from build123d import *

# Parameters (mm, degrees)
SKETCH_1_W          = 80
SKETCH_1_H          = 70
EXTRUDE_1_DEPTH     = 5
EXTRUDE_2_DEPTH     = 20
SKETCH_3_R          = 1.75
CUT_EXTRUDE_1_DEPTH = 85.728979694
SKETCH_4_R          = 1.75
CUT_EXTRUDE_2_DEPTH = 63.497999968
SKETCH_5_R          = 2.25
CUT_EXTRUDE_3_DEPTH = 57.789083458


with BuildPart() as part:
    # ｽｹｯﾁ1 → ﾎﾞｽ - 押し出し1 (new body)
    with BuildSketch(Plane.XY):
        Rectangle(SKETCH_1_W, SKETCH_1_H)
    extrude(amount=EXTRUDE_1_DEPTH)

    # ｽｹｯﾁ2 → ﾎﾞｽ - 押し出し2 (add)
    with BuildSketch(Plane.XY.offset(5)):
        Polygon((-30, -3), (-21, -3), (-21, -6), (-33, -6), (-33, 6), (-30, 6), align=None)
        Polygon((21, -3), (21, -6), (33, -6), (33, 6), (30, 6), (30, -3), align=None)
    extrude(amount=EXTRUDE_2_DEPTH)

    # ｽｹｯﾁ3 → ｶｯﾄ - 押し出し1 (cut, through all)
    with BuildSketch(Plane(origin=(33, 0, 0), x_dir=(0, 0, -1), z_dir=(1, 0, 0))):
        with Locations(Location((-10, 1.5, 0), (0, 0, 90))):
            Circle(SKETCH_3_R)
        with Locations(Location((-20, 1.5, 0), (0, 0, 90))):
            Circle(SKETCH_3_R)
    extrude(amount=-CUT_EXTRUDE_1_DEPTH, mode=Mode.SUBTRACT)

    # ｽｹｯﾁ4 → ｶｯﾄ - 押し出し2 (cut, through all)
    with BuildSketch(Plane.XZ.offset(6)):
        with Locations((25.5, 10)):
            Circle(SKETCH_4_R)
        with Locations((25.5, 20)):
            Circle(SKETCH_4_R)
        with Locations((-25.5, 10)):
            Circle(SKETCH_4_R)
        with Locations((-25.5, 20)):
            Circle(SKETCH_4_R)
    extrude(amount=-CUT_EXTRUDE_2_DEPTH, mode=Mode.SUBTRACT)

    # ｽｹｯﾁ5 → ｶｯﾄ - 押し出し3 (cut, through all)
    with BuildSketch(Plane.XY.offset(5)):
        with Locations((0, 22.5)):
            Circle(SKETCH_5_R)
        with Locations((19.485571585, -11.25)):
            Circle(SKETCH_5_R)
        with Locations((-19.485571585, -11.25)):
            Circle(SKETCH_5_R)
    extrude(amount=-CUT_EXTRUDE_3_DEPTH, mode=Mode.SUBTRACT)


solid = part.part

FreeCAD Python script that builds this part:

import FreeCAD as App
import Part
import Sketcher
from FreeCAD import Vector
Q = App.Units.Quantity

doc = App.newDocument("Part")
params = doc.addObject("Spreadsheet::Sheet", "Params")
for row, (alias, value) in enumerate([
    ("sketch1_width", "80 mm"),
    ("sketch1_height", "70 mm"),
    ("pad1_length", "5 mm"),
    ("sketch2_width", "9 mm"),
    ("sketch2_width2", "3 mm"),
    ("pad2_length", "20 mm"),
    ("sketch3_diameter", "3.5 mm"),
    ("sketch4_diameter", "3.5 mm"),
    ("sketch5_diameter", "4.5 mm"),
], start=1):
    params.set(f"A{row}", alias)
    params.set(f"B{row}", "=" + value)
    params.setAlias(f"B{row}", alias)

body = doc.addObject("PartDesign::Body", "Body")

sketch1 = body.newObject("Sketcher::SketchObject", "Sketch")
sketch1.AttachmentSupport = (doc.getObject("XY_Plane"), [""])
sketch1.MapMode = "FlatFace"
sketch1.addGeometry([
    Part.LineSegment(Vector(-40, 35, 0), Vector(-40, -35, 0)),
    Part.LineSegment(Vector(-40, -35, 0), Vector(40, -35, 0)),
    Part.LineSegment(Vector(40, -35, 0), Vector(40, 35, 0)),
    Part.LineSegment(Vector(40, 35, 0), Vector(-40, 35, 0)),
], False)
sketch1.addConstraint([
    Sketcher.Constraint("Coincident", 0, 2, 1, 1),
    Sketcher.Constraint("Coincident", 1, 2, 2, 1),
    Sketcher.Constraint("Coincident", 2, 2, 3, 1),
    Sketcher.Constraint("Coincident", 3, 2, 0, 1),
    Sketcher.Constraint("Vertical", 0),
    Sketcher.Constraint("Horizontal", 1),
    Sketcher.Constraint("Vertical", 2),
    Sketcher.Constraint("Horizontal", 3),
    Sketcher.Constraint("Symmetric", 0, 2, 2, 2, -1, 1),
    Sketcher.Constraint("DistanceX", 1, 1, 1, 2, Q("80 mm")),
    Sketcher.Constraint("DistanceY", 0, 2, 0, 1, Q("70 mm")),
])
sketch1.setExpression("Constraints[9]", "Params.sketch1_width")
sketch1.setExpression("Constraints[10]", "Params.sketch1_height")
pad1 = body.newObject("PartDesign::Pad", "Pad")
pad1.Profile = sketch1
pad1.setExpression("Length", "Params.pad1_length")

sketch2 = body.newObject("Sketcher::SketchObject", "Sketch001")
sketch2.AttachmentSupport = (doc.getObject("XY_Plane"), [""])
sketch2.MapMode = "FlatFace"
sketch2.AttachmentOffset = App.Placement(Vector(0, 0, 5), App.Rotation())
sketch2.addGeometry([
    Part.LineSegment(Vector(-21, -3, 0), Vector(-30, -3, 0)),
    Part.LineSegment(Vector(-30, -3, 0), Vector(-30, 6, 0)),
    Part.LineSegment(Vector(-30, 6, 0), Vector(-33, 6, 0)),
    Part.LineSegment(Vector(-33, 6, 0), Vector(-33, -6, 0)),
    Part.LineSegment(Vector(-33, -6, 0), Vector(-21, -6, 0)),
    Part.LineSegment(Vector(-21, -6, 0), Vector(-21, -3, 0)),
    Part.LineSegment(Vector(21, -3, 0), Vector(21, -6, 0)),
    Part.LineSegment(Vector(21, -6, 0), Vector(33, -6, 0)),
    Part.LineSegment(Vector(33, -6, 0), Vector(33, 6, 0)),
    Part.LineSegment(Vector(33, 6, 0), Vector(30, 6, 0)),
    Part.LineSegment(Vector(30, 6, 0), Vector(30, -3, 0)),
    Part.LineSegment(Vector(30, -3, 0), Vector(21, -3, 0)),
], False)
sketch2.addConstraint([
    Sketcher.Constraint("Coincident", 0, 2, 1, 1),
    Sketcher.Constraint("Coincident", 1, 2, 2, 1),
    Sketcher.Constraint("Coincident", 2, 2, 3, 1),
    Sketcher.Constraint("Coincident", 3, 2, 4, 1),
    Sketcher.Constraint("Coincident", 4, 2, 5, 1),
    Sketcher.Constraint("Coincident", 5, 2, 0, 1),
    Sketcher.Constraint("Coincident", 6, 2, 7, 1),
    Sketcher.Constraint("Coincident", 7, 2, 8, 1),
    Sketcher.Constraint("Coincident", 8, 2, 9, 1),
    Sketcher.Constraint("Coincident", 9, 2, 10, 1),
    Sketcher.Constraint("Coincident", 10, 2, 11, 1),
    Sketcher.Constraint("Coincident", 11, 2, 6, 1),
    Sketcher.Constraint("Horizontal", 0),
    Sketcher.Constraint("Vertical", 1),
    Sketcher.Constraint("Horizontal", 2),
    Sketcher.Constraint("Vertical", 3),
    Sketcher.Constraint("Horizontal", 4),
    Sketcher.Constraint("Vertical", 5),
    Sketcher.Constraint("Vertical", 6),
    Sketcher.Constraint("Horizontal", 7),
    Sketcher.Constraint("Vertical", 8),
    Sketcher.Constraint("Horizontal", 9),
    Sketcher.Constraint("Vertical", 10),
    Sketcher.Constraint("Horizontal", 11),
    Sketcher.Constraint("Symmetric", 2, 2, 7, 2, -1, 1),
    Sketcher.Constraint("Symmetric", 4, 2, 6, 2, -2),
    Sketcher.Constraint("Symmetric", 1, 2, 9, 2, -2),
    Sketcher.Constraint("Horizontal", 5, 2, 10, 2),
    Sketcher.Constraint("Equal", 11, 1),
    Sketcher.Constraint("Equal", 7, 3),
    Sketcher.Constraint("DistanceX", 0, 2, 0, 1, Q("9 mm")),
    Sketcher.Constraint("DistanceX", 2, 2, 2, 1, Q("3 mm")),
    Sketcher.Constraint("DistanceX", 0, 2, -1, 1, Q("30 mm")),
])
sketch2.setExpression("Constraints[30]", "Params.sketch2_width")
sketch2.setExpression("Constraints[31]", "Params.sketch2_width2")
pad2 = body.newObject("PartDesign::Pad", "Pad001")
pad2.Profile = sketch2
pad2.setExpression("Length", "Params.pad2_length")

sketch3 = body.newObject("Sketcher::SketchObject", "Sketch002")
sketch3.AttachmentSupport = (doc.getObject("YZ_Plane"), [""])
sketch3.MapMode = "FlatFace"
sketch3.AttachmentOffset = App.Placement(Vector(0, 0, 33), App.Rotation())
sketch3.addGeometry([
    Part.Circle(Vector(1.5, 10, 0), Vector(0, 0, 1), 1.75),
    Part.Circle(Vector(1.5, 20, 0), Vector(0, 0, 1), 1.75),
], False)
sketch3.addConstraint([
    Sketcher.Constraint("Equal", 0, 1),
    Sketcher.Constraint("Vertical", 0, 3, 1, 3),
    Sketcher.Constraint("Diameter", 0, Q("3.5 mm")),
    Sketcher.Constraint("DistanceY", -1, 1, 0, 3, Q("10 mm")),
    Sketcher.Constraint("DistanceY", -1, 1, 1, 3, Q("20 mm")),
    Sketcher.Constraint("DistanceX", -1, 1, 0, 3, Q("1.5 mm")),
])
sketch3.setExpression("Constraints[2]", "Params.sketch3_diameter")
pocket1 = body.newObject("PartDesign::Pocket", "Pocket")
pocket1.Profile = sketch3
pocket1.Type = "ThroughAll"

sketch4 = body.newObject("Sketcher::SketchObject", "Sketch003")
sketch4.AttachmentSupport = (doc.getObject("XZ_Plane"), [""])
sketch4.MapMode = "FlatFace"
sketch4.AttachmentOffset = App.Placement(Vector(0, 0, 6), App.Rotation())
sketch4.addGeometry([
    Part.Circle(Vector(25.5, 10, 0), Vector(0, 0, 1), 1.75),
    Part.Circle(Vector(25.5, 20, 0), Vector(0, 0, 1), 1.75),
    Part.Circle(Vector(-25.5, 10, 0), Vector(0, 0, 1), 1.75),
    Part.Circle(Vector(-25.5, 20, 0), Vector(0, 0, 1), 1.75),
], False)
sketch4.addConstraint([
    Sketcher.Constraint("Equal", 0, 1),
    Sketcher.Constraint("Equal", 1, 2),
    Sketcher.Constraint("Equal", 2, 3),
    Sketcher.Constraint("Symmetric", 0, 3, 2, 3, -2),
    Sketcher.Constraint("Symmetric", 1, 3, 3, 3, -2),
    Sketcher.Constraint("Vertical", 0, 3, 1, 3),
    Sketcher.Constraint("Diameter", 0, Q("3.5 mm")),
    Sketcher.Constraint("DistanceY", -1, 1, 0, 3, Q("10 mm")),
    Sketcher.Constraint("DistanceY", -1, 1, 1, 3, Q("20 mm")),
    Sketcher.Constraint("DistanceX", 2, 3, 0, 3, Q("51 mm")),
])
sketch4.setExpression("Constraints[6]", "Params.sketch4_diameter")
pocket2 = body.newObject("PartDesign::Pocket", "Pocket001")
pocket2.Profile = sketch4
pocket2.Type = "ThroughAll"

sketch5 = body.newObject("Sketcher::SketchObject", "Sketch004")
sketch5.AttachmentSupport = (doc.getObject("XY_Plane"), [""])
sketch5.MapMode = "FlatFace"
sketch5.AttachmentOffset = App.Placement(Vector(0, 0, 5), App.Rotation())
sketch5.addGeometry([
    Part.Circle(Vector(0, 22.5, 0), Vector(0, 0, 1), 2.25),
    Part.Circle(Vector(19.485572, -11.25, 0), Vector(0, 0, 1), 2.25),
    Part.Circle(Vector(-19.485572, -11.25, 0), Vector(0, 0, 1), 2.25),
], False)
sketch5.addConstraint([
    Sketcher.Constraint("Equal", 0, 1),
    Sketcher.Constraint("Equal", 1, 2),
    Sketcher.Constraint("Symmetric", 1, 3, 2, 3, -2),
    Sketcher.Constraint("PointOnObject", 0, 3, -2),
    Sketcher.Constraint("Diameter", 0, Q("4.5 mm")),
    Sketcher.Constraint("DistanceY", -1, 1, 0, 3, Q("22.5 mm")),
    Sketcher.Constraint("DistanceY", 1, 3, -1, 1, Q("11.25 mm")),
    Sketcher.Constraint("DistanceX", -1, 1, 1, 3, Q("19.485572 mm")),
])
sketch5.setExpression("Constraints[4]", "Params.sketch5_diameter")
pocket3 = body.newObject("PartDesign::Pocket", "Pocket002")
pocket3.Profile = sketch5
pocket3.Type = "ThroughAll"

doc.recompute()
